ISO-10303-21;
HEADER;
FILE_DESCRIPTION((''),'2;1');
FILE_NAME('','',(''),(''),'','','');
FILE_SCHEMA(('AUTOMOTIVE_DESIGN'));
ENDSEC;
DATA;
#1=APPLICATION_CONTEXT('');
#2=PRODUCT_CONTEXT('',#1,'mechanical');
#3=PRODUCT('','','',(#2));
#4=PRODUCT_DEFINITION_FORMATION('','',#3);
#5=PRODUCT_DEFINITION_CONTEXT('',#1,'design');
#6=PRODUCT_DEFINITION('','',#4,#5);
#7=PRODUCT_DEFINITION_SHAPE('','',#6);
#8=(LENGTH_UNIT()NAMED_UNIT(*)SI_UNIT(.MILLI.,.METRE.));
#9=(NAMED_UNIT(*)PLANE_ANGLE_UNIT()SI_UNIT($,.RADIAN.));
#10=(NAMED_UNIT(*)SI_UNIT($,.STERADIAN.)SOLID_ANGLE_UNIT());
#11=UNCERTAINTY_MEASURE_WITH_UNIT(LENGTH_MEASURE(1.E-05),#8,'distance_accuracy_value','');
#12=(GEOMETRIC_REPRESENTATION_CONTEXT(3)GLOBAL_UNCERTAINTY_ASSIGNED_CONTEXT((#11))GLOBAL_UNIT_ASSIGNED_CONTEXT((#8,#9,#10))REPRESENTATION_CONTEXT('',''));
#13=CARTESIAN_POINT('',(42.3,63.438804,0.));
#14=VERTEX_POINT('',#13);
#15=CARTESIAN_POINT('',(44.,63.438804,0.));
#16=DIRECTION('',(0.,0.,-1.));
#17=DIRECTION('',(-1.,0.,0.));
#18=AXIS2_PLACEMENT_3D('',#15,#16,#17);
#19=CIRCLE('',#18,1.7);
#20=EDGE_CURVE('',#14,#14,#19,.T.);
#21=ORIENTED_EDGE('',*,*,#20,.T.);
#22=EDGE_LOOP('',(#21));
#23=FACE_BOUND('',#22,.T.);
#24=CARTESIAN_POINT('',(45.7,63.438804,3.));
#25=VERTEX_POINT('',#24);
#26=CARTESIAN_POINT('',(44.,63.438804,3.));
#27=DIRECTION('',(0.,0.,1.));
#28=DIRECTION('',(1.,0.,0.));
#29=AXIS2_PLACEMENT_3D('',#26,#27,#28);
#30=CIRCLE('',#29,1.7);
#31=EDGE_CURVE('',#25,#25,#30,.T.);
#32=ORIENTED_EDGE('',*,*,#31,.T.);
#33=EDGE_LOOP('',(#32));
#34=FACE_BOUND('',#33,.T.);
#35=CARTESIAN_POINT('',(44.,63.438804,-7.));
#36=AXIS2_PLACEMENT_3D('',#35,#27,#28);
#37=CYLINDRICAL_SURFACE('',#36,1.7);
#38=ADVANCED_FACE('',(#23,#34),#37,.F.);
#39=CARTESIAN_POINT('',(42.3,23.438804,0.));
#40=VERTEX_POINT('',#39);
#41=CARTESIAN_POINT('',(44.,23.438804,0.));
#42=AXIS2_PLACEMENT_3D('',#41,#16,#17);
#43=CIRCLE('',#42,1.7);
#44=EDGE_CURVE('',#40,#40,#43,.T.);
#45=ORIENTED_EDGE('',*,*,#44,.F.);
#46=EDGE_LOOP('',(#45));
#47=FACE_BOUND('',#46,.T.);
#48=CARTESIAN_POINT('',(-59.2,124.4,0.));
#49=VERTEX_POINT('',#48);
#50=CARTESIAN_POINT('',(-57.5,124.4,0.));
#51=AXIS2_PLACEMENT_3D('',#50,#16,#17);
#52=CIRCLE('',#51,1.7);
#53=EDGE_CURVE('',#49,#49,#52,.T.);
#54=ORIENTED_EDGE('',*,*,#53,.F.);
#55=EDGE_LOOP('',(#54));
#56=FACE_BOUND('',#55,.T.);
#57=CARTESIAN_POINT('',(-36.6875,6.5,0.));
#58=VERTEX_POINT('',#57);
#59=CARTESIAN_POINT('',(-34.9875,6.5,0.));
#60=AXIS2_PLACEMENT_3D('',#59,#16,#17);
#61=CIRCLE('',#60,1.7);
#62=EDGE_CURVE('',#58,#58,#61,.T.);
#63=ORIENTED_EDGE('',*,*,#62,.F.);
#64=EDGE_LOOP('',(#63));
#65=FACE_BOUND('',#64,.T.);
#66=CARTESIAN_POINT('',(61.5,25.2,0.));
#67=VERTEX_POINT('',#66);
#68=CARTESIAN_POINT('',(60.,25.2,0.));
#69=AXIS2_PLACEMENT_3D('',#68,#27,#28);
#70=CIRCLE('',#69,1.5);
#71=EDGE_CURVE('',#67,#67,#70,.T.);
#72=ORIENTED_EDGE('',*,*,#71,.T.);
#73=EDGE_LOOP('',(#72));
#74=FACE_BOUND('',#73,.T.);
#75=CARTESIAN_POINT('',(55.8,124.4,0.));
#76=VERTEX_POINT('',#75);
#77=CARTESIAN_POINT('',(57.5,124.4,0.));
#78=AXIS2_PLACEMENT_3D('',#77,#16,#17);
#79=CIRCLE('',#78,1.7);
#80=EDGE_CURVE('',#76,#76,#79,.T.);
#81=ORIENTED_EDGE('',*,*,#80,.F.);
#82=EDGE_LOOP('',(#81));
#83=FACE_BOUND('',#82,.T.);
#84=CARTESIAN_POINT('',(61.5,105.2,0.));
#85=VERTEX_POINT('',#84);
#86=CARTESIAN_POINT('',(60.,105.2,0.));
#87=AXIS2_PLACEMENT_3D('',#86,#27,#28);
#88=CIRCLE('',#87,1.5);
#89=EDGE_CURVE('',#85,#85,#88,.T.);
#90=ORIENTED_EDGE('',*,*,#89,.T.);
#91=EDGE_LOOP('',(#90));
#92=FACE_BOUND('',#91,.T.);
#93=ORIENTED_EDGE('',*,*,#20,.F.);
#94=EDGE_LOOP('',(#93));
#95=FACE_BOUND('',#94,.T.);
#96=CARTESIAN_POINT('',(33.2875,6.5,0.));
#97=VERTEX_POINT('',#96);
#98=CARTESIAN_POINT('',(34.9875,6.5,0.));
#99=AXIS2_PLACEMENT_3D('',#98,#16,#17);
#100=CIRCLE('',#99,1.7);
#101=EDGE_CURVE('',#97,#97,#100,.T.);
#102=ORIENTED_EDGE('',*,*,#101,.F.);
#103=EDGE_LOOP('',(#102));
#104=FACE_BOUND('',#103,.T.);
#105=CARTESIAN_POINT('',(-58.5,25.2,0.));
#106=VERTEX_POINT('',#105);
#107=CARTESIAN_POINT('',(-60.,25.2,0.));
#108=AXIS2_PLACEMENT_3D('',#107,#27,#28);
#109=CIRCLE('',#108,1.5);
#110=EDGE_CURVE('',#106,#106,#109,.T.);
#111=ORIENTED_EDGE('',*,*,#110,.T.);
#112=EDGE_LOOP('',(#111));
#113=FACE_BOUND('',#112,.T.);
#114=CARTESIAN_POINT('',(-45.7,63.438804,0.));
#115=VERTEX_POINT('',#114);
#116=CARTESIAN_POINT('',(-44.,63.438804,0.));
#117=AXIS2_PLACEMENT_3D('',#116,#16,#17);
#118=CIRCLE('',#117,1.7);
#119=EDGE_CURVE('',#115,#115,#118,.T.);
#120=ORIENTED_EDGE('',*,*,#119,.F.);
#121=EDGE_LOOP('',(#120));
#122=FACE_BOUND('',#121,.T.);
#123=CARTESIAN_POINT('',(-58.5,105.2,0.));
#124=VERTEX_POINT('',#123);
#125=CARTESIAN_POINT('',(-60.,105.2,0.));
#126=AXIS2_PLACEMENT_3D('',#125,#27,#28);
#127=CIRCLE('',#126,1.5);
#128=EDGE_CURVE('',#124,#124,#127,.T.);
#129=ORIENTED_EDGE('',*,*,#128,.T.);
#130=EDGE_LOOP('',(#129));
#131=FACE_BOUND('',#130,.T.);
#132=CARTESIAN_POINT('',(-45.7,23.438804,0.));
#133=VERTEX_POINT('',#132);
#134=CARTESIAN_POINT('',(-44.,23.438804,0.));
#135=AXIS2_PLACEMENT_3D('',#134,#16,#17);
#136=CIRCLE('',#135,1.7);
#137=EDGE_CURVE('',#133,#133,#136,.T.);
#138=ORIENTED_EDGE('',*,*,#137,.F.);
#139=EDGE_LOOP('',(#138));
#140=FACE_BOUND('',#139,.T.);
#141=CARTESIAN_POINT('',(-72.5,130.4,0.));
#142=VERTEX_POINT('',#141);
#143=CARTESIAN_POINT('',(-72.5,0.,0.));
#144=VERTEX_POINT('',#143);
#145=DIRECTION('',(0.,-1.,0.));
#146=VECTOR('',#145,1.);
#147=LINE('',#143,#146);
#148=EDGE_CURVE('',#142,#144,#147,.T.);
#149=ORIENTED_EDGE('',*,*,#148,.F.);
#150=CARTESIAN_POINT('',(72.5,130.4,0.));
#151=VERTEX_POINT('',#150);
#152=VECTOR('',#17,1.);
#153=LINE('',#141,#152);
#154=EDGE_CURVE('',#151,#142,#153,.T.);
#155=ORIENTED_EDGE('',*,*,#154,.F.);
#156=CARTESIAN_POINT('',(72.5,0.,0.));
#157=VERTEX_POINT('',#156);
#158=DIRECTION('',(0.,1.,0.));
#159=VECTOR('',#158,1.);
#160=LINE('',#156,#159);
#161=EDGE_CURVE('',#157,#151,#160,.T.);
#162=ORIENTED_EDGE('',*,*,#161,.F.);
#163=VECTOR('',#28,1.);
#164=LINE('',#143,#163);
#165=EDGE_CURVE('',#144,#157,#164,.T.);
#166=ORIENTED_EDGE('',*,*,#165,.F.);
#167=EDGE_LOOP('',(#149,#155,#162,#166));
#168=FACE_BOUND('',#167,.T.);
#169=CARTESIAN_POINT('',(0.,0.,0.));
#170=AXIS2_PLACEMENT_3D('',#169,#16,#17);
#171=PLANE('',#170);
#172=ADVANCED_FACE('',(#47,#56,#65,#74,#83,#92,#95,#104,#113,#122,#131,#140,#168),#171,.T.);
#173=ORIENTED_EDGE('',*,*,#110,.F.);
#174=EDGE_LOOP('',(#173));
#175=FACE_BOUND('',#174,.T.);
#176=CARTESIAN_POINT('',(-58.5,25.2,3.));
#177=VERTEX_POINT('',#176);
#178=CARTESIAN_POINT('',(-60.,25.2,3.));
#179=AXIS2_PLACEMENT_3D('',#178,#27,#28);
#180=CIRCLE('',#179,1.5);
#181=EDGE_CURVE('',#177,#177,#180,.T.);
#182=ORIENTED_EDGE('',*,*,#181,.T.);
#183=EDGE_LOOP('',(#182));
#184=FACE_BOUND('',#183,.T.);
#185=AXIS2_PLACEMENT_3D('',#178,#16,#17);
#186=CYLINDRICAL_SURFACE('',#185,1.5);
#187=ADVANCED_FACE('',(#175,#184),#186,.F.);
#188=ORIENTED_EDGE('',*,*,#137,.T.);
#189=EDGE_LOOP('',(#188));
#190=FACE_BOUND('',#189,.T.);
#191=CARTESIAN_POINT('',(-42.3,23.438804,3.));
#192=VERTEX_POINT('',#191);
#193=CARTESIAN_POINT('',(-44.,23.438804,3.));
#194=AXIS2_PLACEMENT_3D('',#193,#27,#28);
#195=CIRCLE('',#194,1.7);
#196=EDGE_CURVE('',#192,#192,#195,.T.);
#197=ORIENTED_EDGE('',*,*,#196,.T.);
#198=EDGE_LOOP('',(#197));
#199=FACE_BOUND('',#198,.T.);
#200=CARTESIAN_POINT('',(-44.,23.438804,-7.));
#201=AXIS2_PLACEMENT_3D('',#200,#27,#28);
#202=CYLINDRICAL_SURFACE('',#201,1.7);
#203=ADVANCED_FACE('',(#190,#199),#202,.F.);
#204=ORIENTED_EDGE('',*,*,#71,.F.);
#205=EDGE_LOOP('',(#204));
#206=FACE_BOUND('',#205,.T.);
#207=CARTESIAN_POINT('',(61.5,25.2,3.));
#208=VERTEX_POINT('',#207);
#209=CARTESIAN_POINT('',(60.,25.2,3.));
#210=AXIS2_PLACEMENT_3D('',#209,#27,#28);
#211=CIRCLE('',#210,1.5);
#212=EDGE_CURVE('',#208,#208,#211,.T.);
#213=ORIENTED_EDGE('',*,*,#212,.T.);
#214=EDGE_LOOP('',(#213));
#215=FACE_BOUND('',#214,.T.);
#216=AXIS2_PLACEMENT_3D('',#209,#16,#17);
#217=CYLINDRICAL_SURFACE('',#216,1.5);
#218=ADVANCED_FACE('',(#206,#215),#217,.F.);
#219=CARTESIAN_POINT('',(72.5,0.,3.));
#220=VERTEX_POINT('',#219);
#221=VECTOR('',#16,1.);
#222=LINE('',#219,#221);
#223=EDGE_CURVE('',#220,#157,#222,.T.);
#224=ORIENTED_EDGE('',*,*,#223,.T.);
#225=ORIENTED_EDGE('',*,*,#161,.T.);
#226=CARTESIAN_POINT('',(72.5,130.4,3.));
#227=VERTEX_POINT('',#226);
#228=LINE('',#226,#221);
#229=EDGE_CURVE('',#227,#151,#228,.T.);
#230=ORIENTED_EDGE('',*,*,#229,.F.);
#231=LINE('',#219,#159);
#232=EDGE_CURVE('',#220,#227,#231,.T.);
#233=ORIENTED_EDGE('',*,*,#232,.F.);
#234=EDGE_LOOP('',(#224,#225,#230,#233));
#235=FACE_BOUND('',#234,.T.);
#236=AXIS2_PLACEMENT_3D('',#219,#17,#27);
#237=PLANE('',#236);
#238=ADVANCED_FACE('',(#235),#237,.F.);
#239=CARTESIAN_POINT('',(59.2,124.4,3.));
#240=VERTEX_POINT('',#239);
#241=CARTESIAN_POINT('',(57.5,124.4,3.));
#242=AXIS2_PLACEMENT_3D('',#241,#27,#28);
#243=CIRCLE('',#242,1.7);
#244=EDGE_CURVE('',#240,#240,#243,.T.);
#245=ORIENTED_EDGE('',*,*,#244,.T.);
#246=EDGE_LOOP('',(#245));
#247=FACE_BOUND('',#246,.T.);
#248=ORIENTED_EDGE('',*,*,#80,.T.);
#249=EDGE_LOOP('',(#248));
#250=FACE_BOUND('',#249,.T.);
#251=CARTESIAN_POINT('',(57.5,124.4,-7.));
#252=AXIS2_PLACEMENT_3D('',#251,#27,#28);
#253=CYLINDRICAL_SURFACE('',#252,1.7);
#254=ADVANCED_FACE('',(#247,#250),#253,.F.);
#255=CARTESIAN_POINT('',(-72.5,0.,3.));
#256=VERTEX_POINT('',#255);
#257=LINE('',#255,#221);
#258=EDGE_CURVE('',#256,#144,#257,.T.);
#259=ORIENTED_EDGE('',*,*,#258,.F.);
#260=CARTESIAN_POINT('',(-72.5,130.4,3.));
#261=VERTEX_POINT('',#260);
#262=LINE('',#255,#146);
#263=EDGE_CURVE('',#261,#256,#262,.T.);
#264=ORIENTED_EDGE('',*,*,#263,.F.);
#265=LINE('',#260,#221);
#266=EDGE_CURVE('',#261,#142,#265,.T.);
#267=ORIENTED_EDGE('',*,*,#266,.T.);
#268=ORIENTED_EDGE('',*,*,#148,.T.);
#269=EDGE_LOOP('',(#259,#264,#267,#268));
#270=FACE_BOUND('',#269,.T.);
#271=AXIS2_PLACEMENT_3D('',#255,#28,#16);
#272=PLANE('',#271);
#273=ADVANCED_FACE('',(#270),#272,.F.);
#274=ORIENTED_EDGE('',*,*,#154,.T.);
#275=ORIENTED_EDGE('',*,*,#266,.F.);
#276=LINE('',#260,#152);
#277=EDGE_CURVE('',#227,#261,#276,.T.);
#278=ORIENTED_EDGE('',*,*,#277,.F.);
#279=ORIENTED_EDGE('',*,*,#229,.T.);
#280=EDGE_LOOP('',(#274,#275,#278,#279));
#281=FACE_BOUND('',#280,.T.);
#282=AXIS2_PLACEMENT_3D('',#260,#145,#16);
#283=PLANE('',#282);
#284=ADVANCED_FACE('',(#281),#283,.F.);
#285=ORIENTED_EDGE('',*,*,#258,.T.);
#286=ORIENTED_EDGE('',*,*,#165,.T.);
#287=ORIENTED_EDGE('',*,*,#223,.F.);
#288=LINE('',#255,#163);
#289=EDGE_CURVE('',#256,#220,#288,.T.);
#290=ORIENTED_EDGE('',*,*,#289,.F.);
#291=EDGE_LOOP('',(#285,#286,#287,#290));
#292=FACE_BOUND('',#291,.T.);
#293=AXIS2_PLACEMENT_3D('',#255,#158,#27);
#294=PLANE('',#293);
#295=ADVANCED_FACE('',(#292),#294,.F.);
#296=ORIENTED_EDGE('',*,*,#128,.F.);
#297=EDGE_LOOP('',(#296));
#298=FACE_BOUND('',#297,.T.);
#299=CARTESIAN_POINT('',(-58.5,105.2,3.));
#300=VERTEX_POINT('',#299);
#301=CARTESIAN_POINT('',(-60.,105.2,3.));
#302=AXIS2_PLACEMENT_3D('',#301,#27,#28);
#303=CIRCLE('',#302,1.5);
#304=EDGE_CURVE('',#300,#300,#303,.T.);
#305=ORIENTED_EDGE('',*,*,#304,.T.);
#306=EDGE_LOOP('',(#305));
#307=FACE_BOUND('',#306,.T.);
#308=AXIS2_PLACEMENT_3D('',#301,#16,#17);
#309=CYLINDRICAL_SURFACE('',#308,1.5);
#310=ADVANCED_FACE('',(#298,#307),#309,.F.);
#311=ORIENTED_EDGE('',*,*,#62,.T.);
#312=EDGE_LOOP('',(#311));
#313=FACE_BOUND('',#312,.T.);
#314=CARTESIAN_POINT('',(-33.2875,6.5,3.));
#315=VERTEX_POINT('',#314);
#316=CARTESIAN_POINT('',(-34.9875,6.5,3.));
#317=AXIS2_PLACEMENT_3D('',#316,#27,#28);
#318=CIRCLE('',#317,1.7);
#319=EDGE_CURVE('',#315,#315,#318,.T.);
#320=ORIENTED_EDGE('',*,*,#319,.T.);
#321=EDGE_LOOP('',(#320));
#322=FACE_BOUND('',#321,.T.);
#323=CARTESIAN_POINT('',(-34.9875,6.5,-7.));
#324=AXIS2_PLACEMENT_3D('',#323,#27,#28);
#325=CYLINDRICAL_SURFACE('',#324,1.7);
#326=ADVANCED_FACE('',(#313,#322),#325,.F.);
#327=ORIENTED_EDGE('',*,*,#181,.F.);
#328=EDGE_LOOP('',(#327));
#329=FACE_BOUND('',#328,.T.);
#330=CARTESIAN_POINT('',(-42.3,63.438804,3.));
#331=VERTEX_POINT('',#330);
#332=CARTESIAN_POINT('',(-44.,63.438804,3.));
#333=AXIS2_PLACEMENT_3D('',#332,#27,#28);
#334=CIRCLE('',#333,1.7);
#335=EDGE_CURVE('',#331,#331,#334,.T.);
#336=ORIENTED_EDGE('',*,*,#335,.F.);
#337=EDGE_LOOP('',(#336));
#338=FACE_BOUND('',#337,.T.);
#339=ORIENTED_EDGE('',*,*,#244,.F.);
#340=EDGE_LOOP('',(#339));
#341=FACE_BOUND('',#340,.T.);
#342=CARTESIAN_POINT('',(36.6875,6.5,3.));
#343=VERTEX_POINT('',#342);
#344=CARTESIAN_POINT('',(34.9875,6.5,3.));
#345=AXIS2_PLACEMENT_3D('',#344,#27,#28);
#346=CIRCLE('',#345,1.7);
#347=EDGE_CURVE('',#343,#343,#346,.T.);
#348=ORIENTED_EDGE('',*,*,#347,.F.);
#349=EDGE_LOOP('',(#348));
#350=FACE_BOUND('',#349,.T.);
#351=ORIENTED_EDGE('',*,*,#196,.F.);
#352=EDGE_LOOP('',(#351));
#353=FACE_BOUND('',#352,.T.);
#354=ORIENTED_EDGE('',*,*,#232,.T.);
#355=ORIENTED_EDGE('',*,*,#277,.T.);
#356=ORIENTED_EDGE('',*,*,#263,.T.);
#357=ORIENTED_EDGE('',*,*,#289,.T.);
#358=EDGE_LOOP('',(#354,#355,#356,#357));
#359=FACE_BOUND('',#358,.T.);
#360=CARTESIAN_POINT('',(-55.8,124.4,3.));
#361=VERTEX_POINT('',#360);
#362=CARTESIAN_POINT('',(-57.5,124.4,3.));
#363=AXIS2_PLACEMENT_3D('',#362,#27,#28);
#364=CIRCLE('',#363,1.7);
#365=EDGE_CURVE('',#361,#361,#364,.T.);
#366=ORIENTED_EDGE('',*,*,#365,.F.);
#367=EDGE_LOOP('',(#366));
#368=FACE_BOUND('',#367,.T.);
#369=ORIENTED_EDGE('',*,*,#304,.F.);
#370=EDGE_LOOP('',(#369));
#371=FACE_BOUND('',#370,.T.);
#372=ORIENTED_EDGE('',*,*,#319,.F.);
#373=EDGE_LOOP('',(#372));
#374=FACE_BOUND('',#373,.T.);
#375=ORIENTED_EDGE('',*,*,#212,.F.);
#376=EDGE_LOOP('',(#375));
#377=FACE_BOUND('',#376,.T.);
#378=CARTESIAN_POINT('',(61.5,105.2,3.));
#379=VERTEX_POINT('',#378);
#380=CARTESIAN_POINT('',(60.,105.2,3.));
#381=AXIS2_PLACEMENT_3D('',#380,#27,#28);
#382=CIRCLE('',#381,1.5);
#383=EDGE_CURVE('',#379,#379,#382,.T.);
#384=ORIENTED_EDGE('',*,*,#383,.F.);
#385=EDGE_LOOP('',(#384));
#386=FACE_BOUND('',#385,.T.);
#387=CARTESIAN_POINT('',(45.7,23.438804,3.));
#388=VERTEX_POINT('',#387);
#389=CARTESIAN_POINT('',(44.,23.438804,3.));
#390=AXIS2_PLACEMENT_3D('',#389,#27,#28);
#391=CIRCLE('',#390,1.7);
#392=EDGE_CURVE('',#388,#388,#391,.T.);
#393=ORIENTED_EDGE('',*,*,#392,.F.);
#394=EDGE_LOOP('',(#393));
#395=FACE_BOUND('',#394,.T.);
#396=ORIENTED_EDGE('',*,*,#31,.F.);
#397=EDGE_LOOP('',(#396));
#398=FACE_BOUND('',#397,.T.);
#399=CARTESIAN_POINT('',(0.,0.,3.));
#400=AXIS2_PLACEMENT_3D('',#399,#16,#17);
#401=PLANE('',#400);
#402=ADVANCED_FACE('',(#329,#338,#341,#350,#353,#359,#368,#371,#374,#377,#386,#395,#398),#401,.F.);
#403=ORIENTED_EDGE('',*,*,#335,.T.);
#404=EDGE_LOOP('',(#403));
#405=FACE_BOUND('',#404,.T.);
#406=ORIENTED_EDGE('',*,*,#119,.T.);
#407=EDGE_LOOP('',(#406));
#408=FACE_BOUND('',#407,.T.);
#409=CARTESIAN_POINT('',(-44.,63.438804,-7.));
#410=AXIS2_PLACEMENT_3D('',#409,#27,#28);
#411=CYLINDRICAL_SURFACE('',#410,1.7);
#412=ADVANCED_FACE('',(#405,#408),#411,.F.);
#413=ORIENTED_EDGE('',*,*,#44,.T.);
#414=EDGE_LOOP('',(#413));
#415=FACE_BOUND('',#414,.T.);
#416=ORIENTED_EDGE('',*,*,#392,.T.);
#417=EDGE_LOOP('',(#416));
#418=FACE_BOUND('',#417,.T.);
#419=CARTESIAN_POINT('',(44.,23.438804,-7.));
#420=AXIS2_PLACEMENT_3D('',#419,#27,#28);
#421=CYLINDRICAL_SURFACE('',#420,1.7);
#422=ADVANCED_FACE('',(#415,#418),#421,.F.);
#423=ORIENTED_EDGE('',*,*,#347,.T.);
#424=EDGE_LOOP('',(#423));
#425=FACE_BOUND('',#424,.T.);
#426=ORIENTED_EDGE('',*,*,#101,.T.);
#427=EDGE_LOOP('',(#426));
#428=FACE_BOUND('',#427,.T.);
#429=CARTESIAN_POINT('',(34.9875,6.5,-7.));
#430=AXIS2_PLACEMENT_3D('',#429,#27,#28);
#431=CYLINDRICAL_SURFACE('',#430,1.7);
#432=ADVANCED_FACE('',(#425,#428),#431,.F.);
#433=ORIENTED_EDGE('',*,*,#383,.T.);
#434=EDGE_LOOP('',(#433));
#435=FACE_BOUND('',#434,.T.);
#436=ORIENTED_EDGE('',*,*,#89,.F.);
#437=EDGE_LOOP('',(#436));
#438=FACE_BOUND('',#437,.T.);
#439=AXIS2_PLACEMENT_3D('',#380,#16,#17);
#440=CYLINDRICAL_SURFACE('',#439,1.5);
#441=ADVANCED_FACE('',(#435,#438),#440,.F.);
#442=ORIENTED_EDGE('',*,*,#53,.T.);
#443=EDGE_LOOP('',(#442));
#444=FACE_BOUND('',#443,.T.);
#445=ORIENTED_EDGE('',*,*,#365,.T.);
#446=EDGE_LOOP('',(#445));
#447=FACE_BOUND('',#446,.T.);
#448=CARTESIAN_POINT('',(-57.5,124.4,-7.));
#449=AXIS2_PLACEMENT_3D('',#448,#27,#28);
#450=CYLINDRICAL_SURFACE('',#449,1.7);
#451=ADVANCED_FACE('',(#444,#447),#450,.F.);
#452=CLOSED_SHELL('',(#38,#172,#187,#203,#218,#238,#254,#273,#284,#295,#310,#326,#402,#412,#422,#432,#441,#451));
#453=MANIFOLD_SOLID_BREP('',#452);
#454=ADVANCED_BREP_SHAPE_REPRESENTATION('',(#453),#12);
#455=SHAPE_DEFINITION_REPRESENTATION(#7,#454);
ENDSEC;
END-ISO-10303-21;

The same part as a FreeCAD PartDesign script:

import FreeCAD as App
import Part
import Sketcher
from FreeCAD import Vector


def add_polygon(sketch, points):
    """Adds a closed chain of lines whose ends are joined by coincident constraints."""
    first, n = sketch.GeometryCount, len(points)
    for a, b in zip(points, points[1:] + points[:1]):
        sketch.addGeometry(Part.LineSegment(App.Vector(*a, 0), App.Vector(*b, 0)), False)
    for i in range(n):
        sketch.addConstraint(Sketcher.Constraint("Coincident", first + i, 2, first + (i + 1) % n, 1))

doc = App.newDocument("Part")
params = doc.addObject("Spreadsheet::Sheet", "Params")
for row, (alias, value) in enumerate([
    ("sketch1_diameter", "3 mm"),
    ("sketch1_width", "145 mm"),
    ("sketch1_height", "130.4 mm"),
    ("pad1_length", "3 mm"),
    ("sketch2_diameter", "3.4 mm"),
    ("pocket1_length", "10 mm"),
], start=1):
    params.set(f"A{row}", alias)
    params.set(f"B{row}", "=" + value)
    params.setAlias(f"B{row}", alias)

body = doc.addObject("PartDesign::Body", "Body")

# Sketch on XY plane
sketch1 = body.newObject("Sketcher::SketchObject", "Sketch")
sketch1.AttachmentSupport = (doc.getObject("XY_Plane"), [""])
sketch1.MapMode = "FlatFace"
add_polygon(sketch1, [(-72.5, 130.4), (-72.5, 0), (72.5, 0), (72.5, 130.4)])  # lines 0-3
sketch1.addGeometry(Part.Circle(Vector(-60, 25.2, 0), Vector(0, 0, 1), 1.5), False)  # 4
sketch1.addGeometry(Part.Circle(Vector(60, 25.2, 0), Vector(0, 0, 1), 1.5), False)  # 5
sketch1.addGeometry(Part.Circle(Vector(-60, 105.2, 0), Vector(0, 0, 1), 1.5), False)  # 6
sketch1.addGeometry(Part.Circle(Vector(60, 105.2, 0), Vector(0, 0, 1), 1.5), False)  # 7
sketch1.addConstraint([
    Sketcher.Constraint("Vertical", 0),
    Sketcher.Constraint("Horizontal", 1),
    Sketcher.Constraint("Vertical", 2),
    Sketcher.Constraint("Horizontal", 3),
    Sketcher.Constraint("Equal", 4, 5),
    Sketcher.Constraint("Equal", 5, 6),
    Sketcher.Constraint("Equal", 6, 7),
    Sketcher.Constraint("Symmetric", 0, 2, 1, 2, -1, 1),
    Sketcher.Constraint("Symmetric", 4, 3, 5, 3, -2),
    Sketcher.Constraint("Symmetric", 6, 3, 7, 3, -2),
    Sketcher.Constraint("Vertical", 4, 3, 6, 3),
    Sketcher.Constraint("Diameter", 4, 3.0),
    Sketcher.Constraint("DistanceX", 1, 1, 1, 2, 145.0),
    Sketcher.Constraint("DistanceY", 0, 2, 0, 1, 130.4),
    Sketcher.Constraint("DistanceX", 4, 3, -1, 1, 60.0),
    Sketcher.Constraint("DistanceY", 4, 3, 6, 3, 80.0),
    Sketcher.Constraint("DistanceY", -1, 1, 4, 3, 25.2),
])
sketch1.setExpression("Constraints[15]", "Params.sketch1_diameter")
sketch1.setExpression("Constraints[16]", "Params.sketch1_width")
sketch1.setExpression("Constraints[17]", "Params.sketch1_height")
pad1 = body.newObject("PartDesign::Pad", "Pad")
pad1.Profile = sketch1
pad1.setExpression("Length", "Params.pad1_length")

# Sketch on XY plane
sketch2 = body.newObject("Sketcher::SketchObject", "Sketch001")
sketch2.AttachmentSupport = (doc.getObject("XY_Plane"), [""])
sketch2.MapMode = "FlatFace"
sketch2.AttachmentOffset = App.Placement(Vector(0, 0, 3), App.Rotation())
sketch2.addGeometry([
    Part.Circle(Vector(-57.5, 124.4, 0), Vector(0, 0, 1), 1.7),  # 0
    Part.Circle(Vector(57.5, 124.4, 0), Vector(0, 0, 1), 1.7),  # 1
    Part.Circle(Vector(-44, 63.438804, 0), Vector(0, 0, 1), 1.7),  # 2
    Part.Circle(Vector(-44, 23.438804, 0), Vector(0, 0, 1), 1.7),  # 3
    Part.Circle(Vector(44, 23.438804, 0), Vector(0, 0, 1), 1.7),  # 4
    Part.Circle(Vector(44, 63.438804, 0), Vector(0, 0, 1), 1.7),  # 5
    Part.Circle(Vector(-34.9875, 6.5, 0), Vector(0, 0, 1), 1.7),  # 6
    Part.Circle(Vector(34.9875, 6.5, 0), Vector(0, 0, 1), 1.7),  # 7
], False)
sketch2.addConstraint([
    Sketcher.Constraint("Equal", 0, 1),
    Sketcher.Constraint("Equal", 1, 2),
    Sketcher.Constraint("Equal", 2, 3),
    Sketcher.Constraint("Equal", 3, 4),
    Sketcher.Constraint("Equal", 4, 5),
    Sketcher.Constraint("Equal", 5, 6),
    Sketcher.Constraint("Equal", 6, 7),
    Sketcher.Constraint("Symmetric", 0, 3, 1, 3, -2),
    Sketcher.Constraint("Symmetric", 3, 3, 4, 3, -2),
    Sketcher.Constraint("Symmetric", 2, 3, 5, 3, -2),
    Sketcher.Constraint("Symmetric", 6, 3, 7, 3, -2),
    Sketcher.Constraint("Vertical", 2, 3, 3, 3),
    Sketcher.Constraint("Diameter", 0, 3.4),
    Sketcher.Constraint("DistanceX", 2, 3, -1, 1, 44.0),
    Sketcher.Constraint("DistanceX", 0, 3, 1, 3, 115.0),
    Sketcher.Constraint("DistanceY", 3, 3, 2, 3, 40.0),
    Sketcher.Constraint("DistanceY", -1, 1, 0, 3, 124.4),
    Sketcher.Constraint("DistanceY", -1, 1, 6, 3, 6.5),
    Sketcher.Constraint("DistanceX", 6, 3, 7, 3, 69.975),
    Sketcher.Constraint("DistanceY", -1, 1, 2, 3, 63.438804),
])
sketch2.setExpression("Constraints[12]", "Params.sketch2_diameter")
pocket1 = body.newObject("PartDesign::Pocket", "Pocket")
pocket1.Profile = sketch2
pocket1.setExpression("Length", "Params.pocket1_length")

doc.recompute()
